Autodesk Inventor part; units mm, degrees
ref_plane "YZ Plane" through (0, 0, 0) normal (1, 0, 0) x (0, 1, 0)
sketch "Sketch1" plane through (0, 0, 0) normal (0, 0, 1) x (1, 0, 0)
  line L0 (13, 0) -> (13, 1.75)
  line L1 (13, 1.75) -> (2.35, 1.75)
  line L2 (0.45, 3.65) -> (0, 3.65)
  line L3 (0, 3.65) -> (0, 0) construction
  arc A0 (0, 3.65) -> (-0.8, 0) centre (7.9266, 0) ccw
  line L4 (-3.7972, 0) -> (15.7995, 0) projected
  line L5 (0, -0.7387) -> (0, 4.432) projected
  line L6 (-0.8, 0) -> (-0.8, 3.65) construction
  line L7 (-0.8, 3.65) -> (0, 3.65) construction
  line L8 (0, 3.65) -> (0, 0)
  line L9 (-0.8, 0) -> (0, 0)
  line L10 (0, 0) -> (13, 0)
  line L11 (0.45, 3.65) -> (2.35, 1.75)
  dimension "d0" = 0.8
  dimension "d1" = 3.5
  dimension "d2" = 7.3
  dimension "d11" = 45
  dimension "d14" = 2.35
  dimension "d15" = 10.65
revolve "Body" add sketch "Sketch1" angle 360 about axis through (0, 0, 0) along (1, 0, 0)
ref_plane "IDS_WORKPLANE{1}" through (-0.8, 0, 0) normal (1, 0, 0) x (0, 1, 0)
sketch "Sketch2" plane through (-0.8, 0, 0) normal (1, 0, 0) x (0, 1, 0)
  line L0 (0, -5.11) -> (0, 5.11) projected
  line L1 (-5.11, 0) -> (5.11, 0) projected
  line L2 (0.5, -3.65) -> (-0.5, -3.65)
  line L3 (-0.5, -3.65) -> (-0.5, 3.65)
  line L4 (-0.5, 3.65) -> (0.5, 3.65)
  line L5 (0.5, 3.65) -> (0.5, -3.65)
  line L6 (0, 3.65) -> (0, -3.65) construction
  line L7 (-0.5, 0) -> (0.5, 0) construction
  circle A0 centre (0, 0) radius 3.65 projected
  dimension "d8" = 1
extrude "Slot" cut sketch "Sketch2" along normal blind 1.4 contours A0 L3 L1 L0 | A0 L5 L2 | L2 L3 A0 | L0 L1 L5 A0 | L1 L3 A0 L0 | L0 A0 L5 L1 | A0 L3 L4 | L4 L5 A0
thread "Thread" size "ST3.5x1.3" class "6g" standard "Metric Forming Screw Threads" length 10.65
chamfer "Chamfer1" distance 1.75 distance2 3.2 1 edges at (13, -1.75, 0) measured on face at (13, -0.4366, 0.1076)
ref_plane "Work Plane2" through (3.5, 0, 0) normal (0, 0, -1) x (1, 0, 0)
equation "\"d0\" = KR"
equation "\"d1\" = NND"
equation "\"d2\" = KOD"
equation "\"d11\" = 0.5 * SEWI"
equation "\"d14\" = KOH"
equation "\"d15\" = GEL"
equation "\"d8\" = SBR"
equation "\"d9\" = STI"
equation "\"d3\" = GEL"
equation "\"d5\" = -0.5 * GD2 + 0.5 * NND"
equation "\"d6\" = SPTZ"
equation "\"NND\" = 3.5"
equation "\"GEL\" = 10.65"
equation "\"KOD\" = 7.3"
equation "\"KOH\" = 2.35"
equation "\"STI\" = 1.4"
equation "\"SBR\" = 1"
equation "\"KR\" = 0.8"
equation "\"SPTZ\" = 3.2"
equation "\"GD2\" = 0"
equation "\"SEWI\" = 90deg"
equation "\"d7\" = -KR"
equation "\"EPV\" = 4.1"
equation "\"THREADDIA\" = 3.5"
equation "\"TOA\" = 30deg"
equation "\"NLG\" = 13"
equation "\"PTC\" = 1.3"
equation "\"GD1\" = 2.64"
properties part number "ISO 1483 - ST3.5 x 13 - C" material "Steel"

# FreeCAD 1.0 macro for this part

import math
import FreeCAD as App
import Part
import Sketcher

V = App.Vector
Q = App.Units.Quantity


def edges_at(feature, points):
    """Names of the edges that pass closest to the given points."""
    edges = feature.Shape.Edges
    near = lambda p: min(range(len(edges)), key=lambda i: edges[i].distToShape(Part.Vertex(*p))[0])
    return sorted({f"Edge{near(p) + 1}" for p in points})


def add_polygon(sketch, points):
    """Adds a closed chain of lines whose ends are joined by coincident constraints."""
    first, n = sketch.GeometryCount, len(points)
    for a, b in zip(points, points[1:] + points[:1]):
        sketch.addGeometry(Part.LineSegment(App.Vector(*a, 0), App.Vector(*b, 0)), False)
    for i in range(n):
        sketch.addConstraint(Sketcher.Constraint("Coincident", first + i, 2, first + (i + 1) % n, 1))

doc = App.newDocument("Part")
body = doc.addObject("PartDesign::Body", "Body")

# Sketch on XY plane
sketch1 = doc.addObject("Sketcher::SketchObject", "Sketch")
body.addObject(sketch1)
sketch1.AttachmentSupport = (doc.XY_Plane, [""])
sketch1.MapMode = "FlatFace"
sketch1.addGeometry(Part.LineSegment(V(13, 0, 0), V(13, 1.75, 0)), False)
sketch1.addGeometry(Part.LineSegment(V(13, 1.75, 0), V(2.35, 1.75, 0)), False)
sketch1.addGeometry(Part.LineSegment(V(2.35, 1.75, 0), V(0.45, 3.65, 0)), False)
sketch1.addGeometry(Part.LineSegment(V(0.45, 3.65, 0), V(0, 3.65, 0)), False)
sketch1.addGeometry(Part.ArcOfCircle(Part.Circle(V(7.93, 0, 0), V(0, 0, 1), 8.73), math.radians(155), math.radians(180)), False)
sketch1.addGeometry(Part.LineSegment(V(-0.8, 0, 0), V(13, 0, 0)), False)
sketch1.addConstraint(Sketcher.Constraint("Coincident", 0, 2, 1, 1))
sketch1.addConstraint(Sketcher.Constraint("Coincident", 1, 2, 2, 1))
sketch1.addConstraint(Sketcher.Constraint("Coincident", 2, 2, 3, 1))
sketch1.addConstraint(Sketcher.Constraint("Coincident", 3, 2, 4, 1))
sketch1.addConstraint(Sketcher.Constraint("Coincident", 4, 2, 5, 1))
sketch1.addConstraint(Sketcher.Constraint("Coincident", 5, 2, 0, 1))
sketch1.addConstraint(Sketcher.Constraint("Vertical", 0))
sketch1.addConstraint(Sketcher.Constraint("Horizontal", 1))
sketch1.addConstraint(Sketcher.Constraint("Horizontal", 3))
sketch1.addConstraint(Sketcher.Constraint("Horizontal", 5))
sketch1.addConstraint(Sketcher.Constraint("PointOnObject", 4, 3, -1))
sketch1.addConstraint(Sketcher.Constraint("PointOnObject", 3, 2, -2))
sketch1.addConstraint(Sketcher.Constraint("PointOnObject", 4, 2, -1))
sketch1.addConstraint(Sketcher.Constraint("DistanceX", 1, 2, 1, 1, Q("10.65 mm")))
sketch1.addConstraint(Sketcher.Constraint("DistanceX", 4, 2, -1, 1, Q("0.8 mm")))
sketch1.addConstraint(Sketcher.Constraint("DistanceX", -1, 1, 1, 2, Q("2.35 mm")))
sketch1.addConstraint(Sketcher.Constraint("Angle", 2, Q("135 deg")))
sketch1.addConstraint(Sketcher.Constraint("DistanceX", 3, 2, 3, 1, Q("0.45 mm")))
sketch1.addConstraint(Sketcher.Constraint("DistanceY", 0, 1, 0, 2, Q("1.75 mm")))
revolution = doc.addObject("PartDesign::Revolution", "Revolution")
body.addObject(revolution)
revolution.Profile = sketch1
revolution.ReferenceAxis = (sketch1, ["H_Axis"])
revolution.Angle = 360

# Sketch on YZ plane
sketch2 = doc.addObject("Sketcher::SketchObject", "Sketch001")
body.addObject(sketch2)
sketch2.AttachmentSupport = (doc.YZ_Plane, [""])
sketch2.MapMode = "FlatFace"
sketch2.AttachmentOffset = App.Placement(V(0, 0, -0.8), App.Rotation())
add_polygon(sketch2, [(-0.5, -3.6), (0.5, -3.6), (0.5, 3.6), (-0.5, 3.6)])  # lines 0-3
sketch2.addConstraint(Sketcher.Constraint("Horizontal", 0))
sketch2.addConstraint(Sketcher.Constraint("Vertical", 1))
sketch2.addConstraint(Sketcher.Constraint("Horizontal", 2))
sketch2.addConstraint(Sketcher.Constraint("Vertical", 3))
sketch2.addConstraint(Sketcher.Constraint("Symmetric", 0, 2, 2, 2, -1, 1))
sketch2.addConstraint(Sketcher.Constraint("DistanceX", 0, 1, 0, 2, Q("1 mm")))
sketch2.addConstraint(Sketcher.Constraint("DistanceY", 1, 1, 1, 2, Q("7.3 mm")))
pocket1 = doc.addObject("PartDesign::Pocket", "Pocket")
body.addObject(pocket1)
pocket1.Profile = sketch2
pocket1.Length = 1.4
pocket1.Reversed = True
doc.recompute()

chamfer = doc.addObject("PartDesign::Chamfer", "Chamfer")
body.addObject(chamfer)
chamfer.Base = (pocket1, edges_at(pocket1, [(13, -1.75, 0)]))
chamfer.ChamferType = "Two distances"
chamfer.Size = 1.75
chamfer.Size2 = 3.2

doc.recompute()
